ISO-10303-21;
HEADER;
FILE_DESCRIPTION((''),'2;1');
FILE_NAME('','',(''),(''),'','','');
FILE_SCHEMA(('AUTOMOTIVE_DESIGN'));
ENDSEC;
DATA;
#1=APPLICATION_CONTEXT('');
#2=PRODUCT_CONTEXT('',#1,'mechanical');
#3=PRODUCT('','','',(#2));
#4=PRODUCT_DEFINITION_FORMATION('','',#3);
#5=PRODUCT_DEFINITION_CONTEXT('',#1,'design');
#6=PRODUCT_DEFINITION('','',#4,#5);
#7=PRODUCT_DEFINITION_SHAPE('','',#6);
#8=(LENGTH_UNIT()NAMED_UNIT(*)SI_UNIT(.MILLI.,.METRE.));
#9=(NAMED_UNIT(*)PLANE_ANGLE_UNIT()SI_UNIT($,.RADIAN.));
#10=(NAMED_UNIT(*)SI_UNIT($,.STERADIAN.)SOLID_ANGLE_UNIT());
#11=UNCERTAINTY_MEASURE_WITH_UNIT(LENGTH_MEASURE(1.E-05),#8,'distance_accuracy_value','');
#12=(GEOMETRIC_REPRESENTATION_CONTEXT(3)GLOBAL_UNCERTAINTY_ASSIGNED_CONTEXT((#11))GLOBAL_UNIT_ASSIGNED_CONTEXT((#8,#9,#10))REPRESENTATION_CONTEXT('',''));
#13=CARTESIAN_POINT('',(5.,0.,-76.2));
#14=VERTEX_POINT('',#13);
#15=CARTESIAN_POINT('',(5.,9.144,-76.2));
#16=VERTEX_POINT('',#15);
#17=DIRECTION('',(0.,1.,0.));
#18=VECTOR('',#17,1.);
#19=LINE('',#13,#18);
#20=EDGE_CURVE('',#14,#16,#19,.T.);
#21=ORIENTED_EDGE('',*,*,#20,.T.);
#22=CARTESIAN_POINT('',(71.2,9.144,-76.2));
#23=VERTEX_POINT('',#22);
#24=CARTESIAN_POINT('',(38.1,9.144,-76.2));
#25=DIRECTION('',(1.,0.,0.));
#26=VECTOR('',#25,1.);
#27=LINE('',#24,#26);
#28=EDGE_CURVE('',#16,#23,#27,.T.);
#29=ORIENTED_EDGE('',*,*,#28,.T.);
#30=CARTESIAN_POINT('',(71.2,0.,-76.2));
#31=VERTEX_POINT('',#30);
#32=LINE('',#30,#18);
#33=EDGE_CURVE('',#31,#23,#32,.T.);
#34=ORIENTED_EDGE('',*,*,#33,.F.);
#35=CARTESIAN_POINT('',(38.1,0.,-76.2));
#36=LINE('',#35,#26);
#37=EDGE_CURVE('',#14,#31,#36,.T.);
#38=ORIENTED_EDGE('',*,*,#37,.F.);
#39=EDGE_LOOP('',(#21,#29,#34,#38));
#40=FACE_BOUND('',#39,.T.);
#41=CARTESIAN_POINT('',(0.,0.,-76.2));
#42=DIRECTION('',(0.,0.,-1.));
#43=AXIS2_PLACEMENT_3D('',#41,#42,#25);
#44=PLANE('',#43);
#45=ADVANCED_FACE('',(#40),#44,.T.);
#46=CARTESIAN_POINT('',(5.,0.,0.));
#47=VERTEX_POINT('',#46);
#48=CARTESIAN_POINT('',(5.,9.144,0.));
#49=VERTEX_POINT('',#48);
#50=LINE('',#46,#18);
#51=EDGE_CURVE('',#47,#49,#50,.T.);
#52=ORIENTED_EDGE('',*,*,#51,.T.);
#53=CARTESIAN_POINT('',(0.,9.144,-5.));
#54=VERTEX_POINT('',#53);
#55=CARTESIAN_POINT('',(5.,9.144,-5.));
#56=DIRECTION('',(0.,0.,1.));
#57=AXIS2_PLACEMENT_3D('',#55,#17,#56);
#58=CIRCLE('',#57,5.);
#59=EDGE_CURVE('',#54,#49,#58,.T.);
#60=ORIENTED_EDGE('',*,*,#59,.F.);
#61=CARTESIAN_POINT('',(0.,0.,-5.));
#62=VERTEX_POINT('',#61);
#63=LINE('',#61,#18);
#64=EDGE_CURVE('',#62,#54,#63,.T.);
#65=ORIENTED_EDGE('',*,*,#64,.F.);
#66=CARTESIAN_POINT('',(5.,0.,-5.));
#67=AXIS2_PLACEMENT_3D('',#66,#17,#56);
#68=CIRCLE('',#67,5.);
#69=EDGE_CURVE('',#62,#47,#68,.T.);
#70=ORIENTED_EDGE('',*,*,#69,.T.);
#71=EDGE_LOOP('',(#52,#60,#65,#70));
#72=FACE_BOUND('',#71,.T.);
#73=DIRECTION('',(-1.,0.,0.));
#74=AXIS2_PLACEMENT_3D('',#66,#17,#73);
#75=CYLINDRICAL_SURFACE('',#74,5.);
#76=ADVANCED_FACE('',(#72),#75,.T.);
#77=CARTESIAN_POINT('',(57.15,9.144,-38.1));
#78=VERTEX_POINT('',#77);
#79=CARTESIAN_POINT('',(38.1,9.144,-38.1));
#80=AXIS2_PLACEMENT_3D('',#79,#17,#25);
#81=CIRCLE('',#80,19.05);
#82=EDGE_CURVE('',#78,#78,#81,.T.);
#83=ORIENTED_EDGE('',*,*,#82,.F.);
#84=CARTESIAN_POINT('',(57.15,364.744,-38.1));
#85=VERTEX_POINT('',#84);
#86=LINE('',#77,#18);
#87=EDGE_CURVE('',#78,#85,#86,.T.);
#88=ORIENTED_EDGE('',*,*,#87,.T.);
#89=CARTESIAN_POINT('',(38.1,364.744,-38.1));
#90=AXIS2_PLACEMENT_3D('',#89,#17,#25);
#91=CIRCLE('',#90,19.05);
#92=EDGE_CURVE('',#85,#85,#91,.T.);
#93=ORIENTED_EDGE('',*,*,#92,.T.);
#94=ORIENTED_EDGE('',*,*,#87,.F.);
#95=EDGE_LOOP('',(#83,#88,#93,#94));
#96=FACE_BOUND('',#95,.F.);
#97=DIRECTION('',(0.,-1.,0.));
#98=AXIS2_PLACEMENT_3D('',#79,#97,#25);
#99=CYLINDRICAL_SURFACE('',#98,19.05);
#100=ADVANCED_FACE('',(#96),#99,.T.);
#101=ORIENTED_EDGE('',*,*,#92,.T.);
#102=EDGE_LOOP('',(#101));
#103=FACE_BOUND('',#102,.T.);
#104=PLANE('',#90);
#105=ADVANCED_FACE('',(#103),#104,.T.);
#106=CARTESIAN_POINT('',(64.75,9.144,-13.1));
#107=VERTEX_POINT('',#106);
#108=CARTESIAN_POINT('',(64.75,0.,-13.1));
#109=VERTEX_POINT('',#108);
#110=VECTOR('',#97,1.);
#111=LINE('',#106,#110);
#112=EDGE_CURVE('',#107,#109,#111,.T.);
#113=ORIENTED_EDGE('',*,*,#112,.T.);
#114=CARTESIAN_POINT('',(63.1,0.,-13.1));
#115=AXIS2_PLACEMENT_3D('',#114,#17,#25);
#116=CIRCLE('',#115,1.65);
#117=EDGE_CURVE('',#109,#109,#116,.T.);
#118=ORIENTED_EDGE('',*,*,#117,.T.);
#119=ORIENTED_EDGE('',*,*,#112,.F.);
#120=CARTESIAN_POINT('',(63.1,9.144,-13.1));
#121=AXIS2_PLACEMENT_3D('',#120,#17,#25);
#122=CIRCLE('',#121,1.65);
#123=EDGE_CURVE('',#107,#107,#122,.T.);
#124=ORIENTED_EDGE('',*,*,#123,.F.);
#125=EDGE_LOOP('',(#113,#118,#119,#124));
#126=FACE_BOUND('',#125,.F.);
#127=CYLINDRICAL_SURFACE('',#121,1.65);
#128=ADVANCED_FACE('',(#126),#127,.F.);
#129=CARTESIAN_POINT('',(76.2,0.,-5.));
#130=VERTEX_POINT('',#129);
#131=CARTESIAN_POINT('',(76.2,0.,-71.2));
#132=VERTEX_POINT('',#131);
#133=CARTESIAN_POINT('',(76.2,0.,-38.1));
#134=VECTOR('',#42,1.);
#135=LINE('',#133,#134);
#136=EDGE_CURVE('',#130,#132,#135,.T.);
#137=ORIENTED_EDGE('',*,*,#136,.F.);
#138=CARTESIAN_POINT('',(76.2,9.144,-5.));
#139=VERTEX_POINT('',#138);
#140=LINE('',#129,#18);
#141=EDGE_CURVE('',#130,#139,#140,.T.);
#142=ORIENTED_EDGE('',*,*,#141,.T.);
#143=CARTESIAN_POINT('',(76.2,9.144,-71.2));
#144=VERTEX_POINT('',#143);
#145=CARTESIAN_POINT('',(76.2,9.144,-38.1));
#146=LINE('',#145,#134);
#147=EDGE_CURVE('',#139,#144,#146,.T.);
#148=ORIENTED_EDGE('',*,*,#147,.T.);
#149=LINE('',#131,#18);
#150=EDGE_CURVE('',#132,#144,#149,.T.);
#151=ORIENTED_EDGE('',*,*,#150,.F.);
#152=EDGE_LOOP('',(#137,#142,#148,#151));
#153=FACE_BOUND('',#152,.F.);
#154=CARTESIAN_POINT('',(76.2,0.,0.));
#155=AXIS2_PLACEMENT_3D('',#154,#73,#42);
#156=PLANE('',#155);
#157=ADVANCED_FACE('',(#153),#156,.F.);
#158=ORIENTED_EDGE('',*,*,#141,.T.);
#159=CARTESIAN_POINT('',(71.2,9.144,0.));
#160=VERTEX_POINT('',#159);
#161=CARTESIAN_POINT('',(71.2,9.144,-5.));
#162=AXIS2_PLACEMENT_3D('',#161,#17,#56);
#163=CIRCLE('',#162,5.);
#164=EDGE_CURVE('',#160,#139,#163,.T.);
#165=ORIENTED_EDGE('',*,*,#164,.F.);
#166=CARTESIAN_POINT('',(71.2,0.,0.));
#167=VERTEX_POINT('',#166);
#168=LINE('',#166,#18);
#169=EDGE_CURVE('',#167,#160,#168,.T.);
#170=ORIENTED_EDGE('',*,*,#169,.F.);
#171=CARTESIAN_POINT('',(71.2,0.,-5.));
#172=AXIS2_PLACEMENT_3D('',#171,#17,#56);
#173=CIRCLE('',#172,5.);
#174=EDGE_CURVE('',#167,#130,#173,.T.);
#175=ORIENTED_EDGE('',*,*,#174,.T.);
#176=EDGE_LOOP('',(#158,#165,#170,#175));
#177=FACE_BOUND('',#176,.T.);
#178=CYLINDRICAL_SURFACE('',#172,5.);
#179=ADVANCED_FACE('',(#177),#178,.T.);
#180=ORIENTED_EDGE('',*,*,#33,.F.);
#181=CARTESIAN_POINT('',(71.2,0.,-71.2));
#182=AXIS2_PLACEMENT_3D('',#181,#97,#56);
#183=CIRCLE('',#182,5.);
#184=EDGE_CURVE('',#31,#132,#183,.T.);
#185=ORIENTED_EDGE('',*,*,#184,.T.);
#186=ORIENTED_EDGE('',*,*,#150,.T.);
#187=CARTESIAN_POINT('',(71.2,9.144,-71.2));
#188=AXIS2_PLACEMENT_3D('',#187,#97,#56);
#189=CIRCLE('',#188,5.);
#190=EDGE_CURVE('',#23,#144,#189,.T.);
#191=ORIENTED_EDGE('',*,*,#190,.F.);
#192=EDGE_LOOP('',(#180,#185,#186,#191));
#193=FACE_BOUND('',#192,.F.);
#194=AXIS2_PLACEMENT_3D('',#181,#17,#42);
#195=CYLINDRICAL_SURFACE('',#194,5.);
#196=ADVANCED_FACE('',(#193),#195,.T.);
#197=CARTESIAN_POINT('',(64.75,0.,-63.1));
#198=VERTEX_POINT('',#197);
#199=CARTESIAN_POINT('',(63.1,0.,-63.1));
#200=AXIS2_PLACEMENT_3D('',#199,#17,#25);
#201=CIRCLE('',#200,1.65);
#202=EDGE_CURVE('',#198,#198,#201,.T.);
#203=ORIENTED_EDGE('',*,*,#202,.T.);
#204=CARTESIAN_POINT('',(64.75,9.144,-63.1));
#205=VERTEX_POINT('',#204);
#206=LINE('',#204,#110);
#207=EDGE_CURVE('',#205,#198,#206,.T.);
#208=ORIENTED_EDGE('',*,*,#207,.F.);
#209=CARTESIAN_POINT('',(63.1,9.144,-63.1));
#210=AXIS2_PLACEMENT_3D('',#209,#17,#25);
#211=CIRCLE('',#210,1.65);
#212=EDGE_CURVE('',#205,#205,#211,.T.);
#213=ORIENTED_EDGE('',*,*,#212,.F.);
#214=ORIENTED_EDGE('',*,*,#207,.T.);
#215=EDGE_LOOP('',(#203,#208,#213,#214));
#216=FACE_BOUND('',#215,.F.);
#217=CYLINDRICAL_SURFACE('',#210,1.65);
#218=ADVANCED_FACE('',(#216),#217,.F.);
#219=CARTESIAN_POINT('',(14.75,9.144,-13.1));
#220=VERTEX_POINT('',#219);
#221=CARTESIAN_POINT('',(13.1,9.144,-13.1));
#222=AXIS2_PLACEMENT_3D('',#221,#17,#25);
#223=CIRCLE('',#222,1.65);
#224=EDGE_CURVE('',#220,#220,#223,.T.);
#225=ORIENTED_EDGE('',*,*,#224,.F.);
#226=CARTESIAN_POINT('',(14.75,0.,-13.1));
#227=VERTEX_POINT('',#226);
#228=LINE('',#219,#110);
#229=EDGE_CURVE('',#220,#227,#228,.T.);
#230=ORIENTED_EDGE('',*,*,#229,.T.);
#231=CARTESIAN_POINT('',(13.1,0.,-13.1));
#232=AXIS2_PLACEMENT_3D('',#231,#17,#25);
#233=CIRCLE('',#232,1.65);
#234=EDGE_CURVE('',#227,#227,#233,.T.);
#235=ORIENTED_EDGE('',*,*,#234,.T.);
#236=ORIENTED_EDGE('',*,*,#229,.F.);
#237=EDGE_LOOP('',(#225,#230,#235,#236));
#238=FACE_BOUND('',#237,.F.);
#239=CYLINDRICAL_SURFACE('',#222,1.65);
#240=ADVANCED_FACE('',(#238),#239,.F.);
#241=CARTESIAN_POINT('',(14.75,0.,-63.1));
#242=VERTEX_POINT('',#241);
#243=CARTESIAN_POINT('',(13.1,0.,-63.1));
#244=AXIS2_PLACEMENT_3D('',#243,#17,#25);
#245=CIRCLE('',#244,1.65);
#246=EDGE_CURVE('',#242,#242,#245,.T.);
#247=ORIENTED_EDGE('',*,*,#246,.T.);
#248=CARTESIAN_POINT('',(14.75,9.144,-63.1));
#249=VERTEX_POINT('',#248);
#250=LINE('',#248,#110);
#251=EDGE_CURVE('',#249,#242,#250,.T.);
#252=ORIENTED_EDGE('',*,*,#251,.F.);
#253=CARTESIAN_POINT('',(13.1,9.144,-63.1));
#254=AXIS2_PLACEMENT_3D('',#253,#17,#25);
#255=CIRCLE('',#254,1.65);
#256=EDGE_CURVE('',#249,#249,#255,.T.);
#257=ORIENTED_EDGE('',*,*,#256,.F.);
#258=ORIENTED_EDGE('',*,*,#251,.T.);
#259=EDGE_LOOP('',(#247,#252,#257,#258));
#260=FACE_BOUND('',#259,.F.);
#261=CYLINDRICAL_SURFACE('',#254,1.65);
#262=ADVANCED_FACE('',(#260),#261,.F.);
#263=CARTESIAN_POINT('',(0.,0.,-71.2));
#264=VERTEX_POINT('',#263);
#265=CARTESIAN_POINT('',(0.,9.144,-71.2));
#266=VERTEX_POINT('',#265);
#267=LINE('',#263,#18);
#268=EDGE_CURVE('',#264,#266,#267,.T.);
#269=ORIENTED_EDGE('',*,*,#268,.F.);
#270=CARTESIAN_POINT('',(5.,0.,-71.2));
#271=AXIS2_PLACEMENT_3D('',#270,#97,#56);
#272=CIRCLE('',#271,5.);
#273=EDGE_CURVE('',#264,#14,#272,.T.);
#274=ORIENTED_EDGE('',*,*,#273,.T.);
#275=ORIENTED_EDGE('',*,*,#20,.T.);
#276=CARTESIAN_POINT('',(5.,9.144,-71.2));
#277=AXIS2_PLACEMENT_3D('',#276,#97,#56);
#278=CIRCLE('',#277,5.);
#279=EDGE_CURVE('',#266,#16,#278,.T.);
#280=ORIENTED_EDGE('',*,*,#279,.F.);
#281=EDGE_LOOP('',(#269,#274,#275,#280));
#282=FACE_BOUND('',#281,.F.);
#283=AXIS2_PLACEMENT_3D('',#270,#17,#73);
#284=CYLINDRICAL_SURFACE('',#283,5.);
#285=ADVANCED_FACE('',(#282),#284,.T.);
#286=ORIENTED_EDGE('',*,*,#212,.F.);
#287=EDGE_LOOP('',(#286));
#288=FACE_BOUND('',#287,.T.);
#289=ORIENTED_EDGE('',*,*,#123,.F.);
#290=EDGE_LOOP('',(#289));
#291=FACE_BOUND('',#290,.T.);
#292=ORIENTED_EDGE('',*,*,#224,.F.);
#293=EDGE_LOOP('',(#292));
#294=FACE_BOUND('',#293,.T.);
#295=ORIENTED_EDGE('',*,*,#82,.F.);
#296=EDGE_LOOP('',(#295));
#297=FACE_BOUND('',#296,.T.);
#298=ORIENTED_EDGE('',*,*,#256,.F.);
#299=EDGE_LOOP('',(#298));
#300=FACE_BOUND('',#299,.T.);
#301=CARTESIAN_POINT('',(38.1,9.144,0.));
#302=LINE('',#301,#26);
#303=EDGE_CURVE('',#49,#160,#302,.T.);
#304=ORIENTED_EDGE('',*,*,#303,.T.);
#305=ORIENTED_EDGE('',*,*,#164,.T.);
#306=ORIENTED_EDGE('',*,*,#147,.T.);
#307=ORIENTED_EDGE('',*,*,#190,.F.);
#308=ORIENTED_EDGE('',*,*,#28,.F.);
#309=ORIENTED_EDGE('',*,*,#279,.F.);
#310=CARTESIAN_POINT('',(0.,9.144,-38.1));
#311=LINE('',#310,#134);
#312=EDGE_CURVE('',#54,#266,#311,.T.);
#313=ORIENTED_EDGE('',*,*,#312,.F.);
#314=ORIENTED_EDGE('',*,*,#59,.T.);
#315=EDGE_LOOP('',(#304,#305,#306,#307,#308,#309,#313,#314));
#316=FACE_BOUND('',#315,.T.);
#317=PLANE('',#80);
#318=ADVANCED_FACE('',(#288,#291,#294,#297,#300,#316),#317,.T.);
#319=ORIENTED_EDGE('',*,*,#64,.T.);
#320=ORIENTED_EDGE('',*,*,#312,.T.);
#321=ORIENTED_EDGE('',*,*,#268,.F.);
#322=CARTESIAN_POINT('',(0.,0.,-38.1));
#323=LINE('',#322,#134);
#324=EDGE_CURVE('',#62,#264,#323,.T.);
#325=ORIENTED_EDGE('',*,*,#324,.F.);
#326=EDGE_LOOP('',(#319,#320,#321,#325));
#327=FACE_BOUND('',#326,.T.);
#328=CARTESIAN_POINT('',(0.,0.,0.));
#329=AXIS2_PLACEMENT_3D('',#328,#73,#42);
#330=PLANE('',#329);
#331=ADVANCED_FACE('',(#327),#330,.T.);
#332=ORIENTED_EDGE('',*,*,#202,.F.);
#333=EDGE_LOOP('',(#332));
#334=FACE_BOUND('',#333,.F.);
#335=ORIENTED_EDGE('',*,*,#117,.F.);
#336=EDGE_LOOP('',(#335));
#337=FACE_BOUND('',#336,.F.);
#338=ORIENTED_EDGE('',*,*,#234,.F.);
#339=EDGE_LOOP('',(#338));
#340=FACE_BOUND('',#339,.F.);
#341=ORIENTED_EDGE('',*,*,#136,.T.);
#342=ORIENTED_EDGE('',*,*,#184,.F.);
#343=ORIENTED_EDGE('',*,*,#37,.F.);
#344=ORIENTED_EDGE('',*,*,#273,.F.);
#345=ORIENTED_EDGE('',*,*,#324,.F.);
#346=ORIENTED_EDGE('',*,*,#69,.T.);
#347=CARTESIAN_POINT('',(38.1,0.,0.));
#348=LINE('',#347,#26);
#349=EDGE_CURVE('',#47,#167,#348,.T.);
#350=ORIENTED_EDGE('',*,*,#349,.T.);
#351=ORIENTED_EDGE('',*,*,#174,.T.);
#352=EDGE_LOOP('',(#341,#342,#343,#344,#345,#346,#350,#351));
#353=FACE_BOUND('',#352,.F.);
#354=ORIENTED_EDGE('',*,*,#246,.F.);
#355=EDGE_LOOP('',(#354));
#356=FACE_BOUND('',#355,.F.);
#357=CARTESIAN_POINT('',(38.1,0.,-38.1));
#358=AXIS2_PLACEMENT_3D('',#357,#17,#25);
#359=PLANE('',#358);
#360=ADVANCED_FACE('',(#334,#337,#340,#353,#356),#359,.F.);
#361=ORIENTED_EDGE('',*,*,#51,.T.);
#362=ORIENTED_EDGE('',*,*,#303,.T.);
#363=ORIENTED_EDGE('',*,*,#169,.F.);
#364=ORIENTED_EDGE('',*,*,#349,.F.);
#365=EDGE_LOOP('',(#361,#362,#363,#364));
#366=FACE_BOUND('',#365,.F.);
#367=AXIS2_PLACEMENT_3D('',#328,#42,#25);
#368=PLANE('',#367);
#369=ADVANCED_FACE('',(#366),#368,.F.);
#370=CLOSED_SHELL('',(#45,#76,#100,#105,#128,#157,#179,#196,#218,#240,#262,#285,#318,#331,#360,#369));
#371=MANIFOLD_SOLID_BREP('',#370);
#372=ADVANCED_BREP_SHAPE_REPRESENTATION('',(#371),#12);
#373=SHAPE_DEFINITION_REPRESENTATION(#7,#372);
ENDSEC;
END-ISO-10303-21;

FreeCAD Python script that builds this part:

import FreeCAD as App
import Part
import Sketcher

V = App.Vector
Q = App.Units.Quantity


def edges_at(feature, points):
    """Names of the edges that pass closest to the given points."""
    edges = feature.Shape.Edges
    near = lambda p: min(range(len(edges)), key=lambda i: edges[i].distToShape(Part.Vertex(*p))[0])
    return sorted({f"Edge{near(p) + 1}" for p in points})

doc = App.newDocument("Part")
params = doc.addObject("Spreadsheet::Sheet", "Params")
for row, (alias, value) in enumerate([
    ("sketch1_width", "3 in"),
    ("pad1_length", "0.36 in"),
    ("pocket1_length", "0.36 in"),
    ("sketch3_diameter", "1.5 in"),
    ("pad2_length", "14 in"),
    ("fillet_radius", "5 mm"),
], start=1):
    params.set(f"A{row}", alias)
    params.set(f"B{row}", "=" + value)
    params.setAlias(f"B{row}", alias)

body = doc.addObject("PartDesign::Body", "Body")

sketch1 = doc.addObject("Sketcher::SketchObject", "Sketch")
body.addObject(sketch1)
sketch1.AttachmentSupport = (doc.XZ_Plane, [""])
sketch1.MapMode = "FlatFace"
sketch1.addGeometry([
    Part.LineSegment(V(0, -76.2, 0), V(0, 0, 0)),
    Part.LineSegment(V(0, 0, 0), V(76.2, 0, 0)),
    Part.LineSegment(V(76.2, 0, 0), V(76.2, -76.2, 0)),
    Part.LineSegment(V(76.2, -76.2, 0), V(0, -76.2, 0)),
], False)
sketch1.addConstraint([
    Sketcher.Constraint("Coincident", 0, 2, 1, 1),
    Sketcher.Constraint("Coincident", 1, 2, 2, 1),
    Sketcher.Constraint("Coincident", 2, 2, 3, 1),
    Sketcher.Constraint("Coincident", 3, 2, 0, 1),
    Sketcher.Constraint("Vertical", 0),
    Sketcher.Constraint("Horizontal", 1),
    Sketcher.Constraint("Vertical", 2),
    Sketcher.Constraint("Horizontal", 3),
    Sketcher.Constraint("Coincident", 0, 2, -1, 1),
    Sketcher.Constraint("Equal", 3, 0),
    Sketcher.Constraint("DistanceX", 1, 1, 1, 2, Q("3 in")),
])
sketch1.setExpression("Constraints[10]", "Params.sketch1_width")
pad1 = doc.addObject("PartDesign::Pad", "Pad")
body.addObject(pad1)
pad1.Profile = sketch1
pad1.setExpression("Length", "Params.pad1_length")
pad1.Reversed = True

sketch2 = doc.addObject("Sketcher::SketchObject", "Sketch001")
body.addObject(sketch2)
sketch2.AttachmentSupport = (doc.XZ_Plane, [""])
sketch2.MapMode = "FlatFace"
sketch2.AttachmentOffset = App.Placement(V(0, 0, -0.36 * 25.4), App.Rotation())
sketch2.addGeometry([
    Part.Circle(V(13.1, -63.1, 0), V(0, 0, 1), 1.65),
    Part.Circle(V(63.1, -63.1, 0), V(0, 0, 1), 1.65),
    Part.Circle(V(63.1, -13.1, 0), V(0, 0, 1), 1.65),
    Part.Circle(V(13.1, -13.1, 0), V(0, 0, 1), 1.65),
], False)
sketch2.addConstraint([
    Sketcher.Constraint("Equal", 0, 1),
    Sketcher.Constraint("Equal", 1, 2),
    Sketcher.Constraint("Equal", 2, 3),
    Sketcher.Constraint("Horizontal", 0, 3, 1, 3),
    Sketcher.Constraint("Horizontal", 2, 3, 3, 3),
    Sketcher.Constraint("Vertical", 1, 3, 2, 3),
    Sketcher.Constraint("Vertical", 0, 3, 3, 3),
    Sketcher.Constraint("Diameter", 0, 3.3),
    Sketcher.Constraint("DistanceX", -1, 1, 0, 3, 13.1),
    Sketcher.Constraint("DistanceY", 0, 3, -1, 1, 63.1),
    Sketcher.Constraint("DistanceX", -1, 1, 1, 3, 63.1),
    Sketcher.Constraint("DistanceY", 2, 3, -1, 1, 13.1),
])
pocket1 = doc.addObject("PartDesign::Pocket", "Pocket")
body.addObject(pocket1)
pocket1.Profile = sketch2
pocket1.setExpression("Length", "Params.pocket1_length")
pocket1.Reversed = True

sketch3 = doc.addObject("Sketcher::SketchObject", "Sketch002")
body.addObject(sketch3)
sketch3.AttachmentSupport = (doc.XZ_Plane, [""])
sketch3.MapMode = "FlatFace"
sketch3.AttachmentOffset = App.Placement(V(0, 0, -0.36 * 25.4), App.Rotation())
sketch3.addGeometry(Part.Circle(V(38.1, -38.1, 0), V(0, 0, 1), 19.05), False)
sketch3.addConstraint([
    Sketcher.Constraint("Diameter", 0, Q("1.5 in")),
    Sketcher.Constraint("DistanceX", -1, 1, 0, 3, Q("1.5 in")),
    Sketcher.Constraint("DistanceY", 0, 3, -1, 1, Q("1.5 in")),
])
sketch3.setExpression("Constraints[0]", "Params.sketch3_diameter")
pad2 = doc.addObject("PartDesign::Pad", "Pad001")
body.addObject(pad2)
pad2.Profile = sketch3
pad2.setExpression("Length", "Params.pad2_length")
pad2.Reversed = True
doc.recompute()

fillet = doc.addObject("PartDesign::Fillet", "Fillet")
body.addObject(fillet)
fillet.Base = (pad2, edges_at(pad2, [
    (0, 4.572, -76.2),
    (76.2, 4.572, -76.2),
    (76.2, 4.572, 0),
    (0, 4.572, 0),
]))
fillet.setExpression("Radius", "Params.fillet_radius")

doc.recompute()
